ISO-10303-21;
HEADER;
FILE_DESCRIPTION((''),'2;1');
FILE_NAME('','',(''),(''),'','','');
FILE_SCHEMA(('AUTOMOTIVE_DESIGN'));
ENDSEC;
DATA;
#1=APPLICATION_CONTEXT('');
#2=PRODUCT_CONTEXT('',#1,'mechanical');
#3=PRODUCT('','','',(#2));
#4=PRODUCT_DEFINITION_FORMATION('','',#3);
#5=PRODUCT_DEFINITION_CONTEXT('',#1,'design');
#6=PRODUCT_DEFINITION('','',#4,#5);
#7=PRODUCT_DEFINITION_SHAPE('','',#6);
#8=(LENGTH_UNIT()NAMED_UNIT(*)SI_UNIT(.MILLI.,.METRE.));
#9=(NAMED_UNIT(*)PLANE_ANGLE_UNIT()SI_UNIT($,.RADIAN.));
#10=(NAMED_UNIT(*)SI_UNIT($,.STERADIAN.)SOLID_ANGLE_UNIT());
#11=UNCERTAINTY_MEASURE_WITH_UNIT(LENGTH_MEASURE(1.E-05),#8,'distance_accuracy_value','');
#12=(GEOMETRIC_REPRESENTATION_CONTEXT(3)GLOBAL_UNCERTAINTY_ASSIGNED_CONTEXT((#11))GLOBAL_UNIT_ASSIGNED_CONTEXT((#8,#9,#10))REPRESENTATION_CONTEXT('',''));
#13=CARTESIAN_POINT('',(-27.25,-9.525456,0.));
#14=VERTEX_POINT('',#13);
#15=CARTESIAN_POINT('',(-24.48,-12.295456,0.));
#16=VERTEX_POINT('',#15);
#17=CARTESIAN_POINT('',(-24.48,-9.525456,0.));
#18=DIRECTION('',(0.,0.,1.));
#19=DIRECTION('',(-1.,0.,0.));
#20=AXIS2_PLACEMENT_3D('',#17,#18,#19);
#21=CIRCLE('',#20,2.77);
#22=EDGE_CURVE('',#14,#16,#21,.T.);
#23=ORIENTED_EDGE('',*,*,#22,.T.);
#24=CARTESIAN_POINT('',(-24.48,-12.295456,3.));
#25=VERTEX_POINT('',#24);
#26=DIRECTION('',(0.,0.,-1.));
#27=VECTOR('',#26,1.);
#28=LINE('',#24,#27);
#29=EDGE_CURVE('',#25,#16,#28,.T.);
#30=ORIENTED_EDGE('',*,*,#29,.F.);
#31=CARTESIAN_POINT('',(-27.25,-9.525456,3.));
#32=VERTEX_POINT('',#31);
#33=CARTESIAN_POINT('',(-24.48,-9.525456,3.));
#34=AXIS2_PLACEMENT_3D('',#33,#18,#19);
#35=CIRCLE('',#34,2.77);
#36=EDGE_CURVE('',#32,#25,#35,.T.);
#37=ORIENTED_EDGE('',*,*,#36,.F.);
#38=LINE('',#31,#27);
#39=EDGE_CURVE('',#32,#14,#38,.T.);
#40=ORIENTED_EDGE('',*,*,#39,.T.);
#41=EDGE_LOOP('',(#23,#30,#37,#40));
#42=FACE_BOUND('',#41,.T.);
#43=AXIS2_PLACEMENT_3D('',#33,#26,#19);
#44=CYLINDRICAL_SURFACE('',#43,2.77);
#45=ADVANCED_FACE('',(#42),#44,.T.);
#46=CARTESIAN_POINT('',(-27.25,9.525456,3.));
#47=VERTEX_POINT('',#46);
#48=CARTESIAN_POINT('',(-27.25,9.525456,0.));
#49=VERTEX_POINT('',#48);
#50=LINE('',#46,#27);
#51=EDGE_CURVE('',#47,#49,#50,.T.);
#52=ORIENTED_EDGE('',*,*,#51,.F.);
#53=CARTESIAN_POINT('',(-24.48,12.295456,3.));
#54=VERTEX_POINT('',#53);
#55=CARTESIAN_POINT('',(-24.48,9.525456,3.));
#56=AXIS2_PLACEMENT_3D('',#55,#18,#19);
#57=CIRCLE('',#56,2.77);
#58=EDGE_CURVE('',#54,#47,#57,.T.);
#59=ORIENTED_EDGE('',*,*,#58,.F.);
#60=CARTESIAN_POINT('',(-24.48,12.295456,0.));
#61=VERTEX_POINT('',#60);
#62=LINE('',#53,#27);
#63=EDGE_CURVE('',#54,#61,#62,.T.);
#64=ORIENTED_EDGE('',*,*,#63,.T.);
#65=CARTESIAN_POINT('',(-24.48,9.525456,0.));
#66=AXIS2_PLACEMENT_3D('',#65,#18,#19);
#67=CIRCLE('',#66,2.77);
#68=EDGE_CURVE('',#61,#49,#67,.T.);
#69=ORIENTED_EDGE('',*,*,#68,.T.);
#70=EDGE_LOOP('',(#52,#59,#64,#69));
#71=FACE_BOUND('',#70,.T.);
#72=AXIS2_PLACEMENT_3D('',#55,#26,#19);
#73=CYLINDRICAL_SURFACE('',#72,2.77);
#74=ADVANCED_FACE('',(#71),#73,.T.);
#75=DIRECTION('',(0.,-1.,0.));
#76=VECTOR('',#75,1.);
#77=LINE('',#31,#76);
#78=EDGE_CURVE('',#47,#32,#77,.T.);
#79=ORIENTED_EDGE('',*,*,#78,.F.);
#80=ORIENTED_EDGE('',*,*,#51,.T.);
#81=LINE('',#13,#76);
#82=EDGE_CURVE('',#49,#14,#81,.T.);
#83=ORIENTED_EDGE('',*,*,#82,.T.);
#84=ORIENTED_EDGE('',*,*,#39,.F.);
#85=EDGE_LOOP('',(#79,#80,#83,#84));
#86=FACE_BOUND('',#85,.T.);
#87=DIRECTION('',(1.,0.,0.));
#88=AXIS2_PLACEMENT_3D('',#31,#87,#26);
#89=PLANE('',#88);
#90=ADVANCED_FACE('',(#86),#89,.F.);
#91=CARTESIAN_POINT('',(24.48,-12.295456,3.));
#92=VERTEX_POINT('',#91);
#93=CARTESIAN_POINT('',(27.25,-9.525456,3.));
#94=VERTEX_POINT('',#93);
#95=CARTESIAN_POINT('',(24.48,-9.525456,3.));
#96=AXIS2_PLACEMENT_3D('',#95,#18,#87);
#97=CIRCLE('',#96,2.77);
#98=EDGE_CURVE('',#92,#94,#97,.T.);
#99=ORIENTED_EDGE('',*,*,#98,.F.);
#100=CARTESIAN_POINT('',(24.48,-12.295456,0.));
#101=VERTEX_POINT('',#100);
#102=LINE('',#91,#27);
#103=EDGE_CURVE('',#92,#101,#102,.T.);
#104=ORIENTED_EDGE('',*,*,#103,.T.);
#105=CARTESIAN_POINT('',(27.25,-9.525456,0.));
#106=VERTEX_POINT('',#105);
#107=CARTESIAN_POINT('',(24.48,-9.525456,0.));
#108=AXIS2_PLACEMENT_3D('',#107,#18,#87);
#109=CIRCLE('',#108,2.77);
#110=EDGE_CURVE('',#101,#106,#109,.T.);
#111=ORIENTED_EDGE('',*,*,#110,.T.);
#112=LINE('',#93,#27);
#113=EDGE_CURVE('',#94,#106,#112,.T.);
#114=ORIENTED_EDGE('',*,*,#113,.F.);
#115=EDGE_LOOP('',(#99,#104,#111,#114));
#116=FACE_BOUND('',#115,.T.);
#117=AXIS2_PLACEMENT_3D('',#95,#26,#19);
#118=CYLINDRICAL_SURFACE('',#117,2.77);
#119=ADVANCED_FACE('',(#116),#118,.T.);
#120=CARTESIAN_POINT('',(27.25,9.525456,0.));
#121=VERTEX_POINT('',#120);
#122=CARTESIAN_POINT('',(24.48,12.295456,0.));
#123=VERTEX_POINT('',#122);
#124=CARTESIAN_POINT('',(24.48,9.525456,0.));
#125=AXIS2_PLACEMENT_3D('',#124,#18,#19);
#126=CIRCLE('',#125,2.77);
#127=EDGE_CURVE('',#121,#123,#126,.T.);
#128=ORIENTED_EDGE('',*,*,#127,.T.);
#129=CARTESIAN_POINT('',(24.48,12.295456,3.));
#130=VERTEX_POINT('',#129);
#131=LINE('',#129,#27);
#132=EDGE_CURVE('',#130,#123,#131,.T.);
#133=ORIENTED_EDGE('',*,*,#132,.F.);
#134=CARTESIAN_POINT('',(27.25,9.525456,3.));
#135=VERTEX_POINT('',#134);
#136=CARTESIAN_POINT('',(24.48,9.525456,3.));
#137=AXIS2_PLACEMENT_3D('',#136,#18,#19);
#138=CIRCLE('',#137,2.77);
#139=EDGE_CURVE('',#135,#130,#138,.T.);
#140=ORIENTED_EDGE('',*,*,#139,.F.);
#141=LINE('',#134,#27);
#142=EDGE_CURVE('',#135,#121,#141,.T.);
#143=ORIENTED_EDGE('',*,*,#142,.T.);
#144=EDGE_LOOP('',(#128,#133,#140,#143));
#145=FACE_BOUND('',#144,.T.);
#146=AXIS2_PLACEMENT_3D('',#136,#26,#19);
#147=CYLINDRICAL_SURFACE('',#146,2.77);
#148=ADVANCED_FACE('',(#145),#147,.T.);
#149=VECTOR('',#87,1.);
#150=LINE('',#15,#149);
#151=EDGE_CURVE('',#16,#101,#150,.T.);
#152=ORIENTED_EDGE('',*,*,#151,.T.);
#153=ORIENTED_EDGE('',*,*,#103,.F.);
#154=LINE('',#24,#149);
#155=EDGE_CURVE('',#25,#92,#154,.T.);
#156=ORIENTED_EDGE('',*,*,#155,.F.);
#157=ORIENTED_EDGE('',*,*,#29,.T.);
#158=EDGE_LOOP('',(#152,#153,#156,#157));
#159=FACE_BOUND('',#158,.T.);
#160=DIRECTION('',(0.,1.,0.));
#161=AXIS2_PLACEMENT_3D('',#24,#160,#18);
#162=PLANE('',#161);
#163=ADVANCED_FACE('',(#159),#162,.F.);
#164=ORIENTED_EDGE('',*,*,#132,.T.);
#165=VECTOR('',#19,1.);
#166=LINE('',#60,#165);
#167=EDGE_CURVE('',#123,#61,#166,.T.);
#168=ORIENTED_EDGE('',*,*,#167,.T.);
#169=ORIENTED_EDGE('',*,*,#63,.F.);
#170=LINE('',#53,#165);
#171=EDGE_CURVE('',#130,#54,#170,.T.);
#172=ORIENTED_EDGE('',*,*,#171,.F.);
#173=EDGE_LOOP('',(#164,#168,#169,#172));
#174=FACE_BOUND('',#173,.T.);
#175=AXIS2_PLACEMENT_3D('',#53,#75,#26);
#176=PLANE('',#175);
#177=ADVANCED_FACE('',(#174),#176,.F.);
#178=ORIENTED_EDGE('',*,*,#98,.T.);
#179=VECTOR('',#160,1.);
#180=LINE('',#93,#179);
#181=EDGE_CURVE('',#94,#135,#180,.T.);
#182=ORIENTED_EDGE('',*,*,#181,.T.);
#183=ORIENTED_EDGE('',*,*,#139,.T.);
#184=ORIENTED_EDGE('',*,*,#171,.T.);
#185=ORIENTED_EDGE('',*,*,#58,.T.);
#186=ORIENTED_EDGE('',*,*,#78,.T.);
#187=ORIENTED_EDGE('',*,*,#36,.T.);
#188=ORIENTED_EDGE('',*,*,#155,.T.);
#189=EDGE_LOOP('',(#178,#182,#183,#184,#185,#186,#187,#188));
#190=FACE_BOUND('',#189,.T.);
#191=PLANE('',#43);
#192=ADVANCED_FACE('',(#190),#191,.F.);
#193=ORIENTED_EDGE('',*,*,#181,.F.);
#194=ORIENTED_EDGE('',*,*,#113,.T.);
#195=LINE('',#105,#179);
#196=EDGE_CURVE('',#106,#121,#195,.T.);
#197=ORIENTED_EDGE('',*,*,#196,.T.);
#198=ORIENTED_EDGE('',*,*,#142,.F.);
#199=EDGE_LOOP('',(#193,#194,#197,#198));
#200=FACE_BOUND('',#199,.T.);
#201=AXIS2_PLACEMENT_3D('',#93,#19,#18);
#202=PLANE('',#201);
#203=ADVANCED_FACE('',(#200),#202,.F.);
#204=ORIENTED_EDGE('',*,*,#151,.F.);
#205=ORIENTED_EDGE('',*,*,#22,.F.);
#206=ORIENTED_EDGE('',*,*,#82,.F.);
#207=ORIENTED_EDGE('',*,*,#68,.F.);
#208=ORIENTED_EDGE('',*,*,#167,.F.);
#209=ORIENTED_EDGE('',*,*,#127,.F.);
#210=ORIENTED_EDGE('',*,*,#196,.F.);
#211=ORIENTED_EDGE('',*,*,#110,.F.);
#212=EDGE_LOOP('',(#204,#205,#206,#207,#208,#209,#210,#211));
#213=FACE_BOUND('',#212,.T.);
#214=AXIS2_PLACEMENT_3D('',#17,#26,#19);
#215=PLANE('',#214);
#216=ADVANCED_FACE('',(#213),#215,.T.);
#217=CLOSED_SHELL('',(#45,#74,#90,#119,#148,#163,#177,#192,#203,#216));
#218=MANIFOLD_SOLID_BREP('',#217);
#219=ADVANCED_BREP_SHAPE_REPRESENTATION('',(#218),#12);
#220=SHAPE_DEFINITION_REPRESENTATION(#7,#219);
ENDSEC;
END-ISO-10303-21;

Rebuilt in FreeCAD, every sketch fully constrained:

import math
import FreeCAD as App
import Part
import Sketcher

V = App.Vector
Q = App.Units.Quantity

doc = App.newDocument("Part")
body = doc.addObject("PartDesign::Body", "Body")

# Sketch on XY plane
sketch1 = body.newObject("Sketcher::SketchObject", "Sketch")
sketch1.AttachmentSupport = (doc.getObject("XY_Plane"), [""])
sketch1.MapMode = "FlatFace"
sketch1.addGeometry(Part.LineSegment(V(-24.5, -12.3, 0), V(24.5, -12.3, 0)), False)
sketch1.addGeometry(Part.ArcOfCircle(Part.Circle(V(24.5, -9.5, 0), V(0, 0, 1), 2.8), math.radians(-90), math.radians(0)), False)
sketch1.addGeometry(Part.LineSegment(V(27.2, -9.5, 0), V(27.2, 9.5, 0)), False)
sketch1.addGeometry(Part.ArcOfCircle(Part.Circle(V(24.5, 9.5, 0), V(0, 0, 1), 2.8), math.radians(0), math.radians(90)), False)
sketch1.addGeometry(Part.LineSegment(V(24.5, 12.3, 0), V(-24.5, 12.3, 0)), False)
sketch1.addGeometry(Part.ArcOfCircle(Part.Circle(V(-24.5, 9.5, 0), V(0, 0, 1), 2.8), math.radians(90), math.radians(180)), False)
sketch1.addGeometry(Part.LineSegment(V(-27.2, 9.5, 0), V(-27.2, -9.5, 0)), False)
sketch1.addGeometry(Part.ArcOfCircle(Part.Circle(V(-24.5, -9.5, 0), V(0, 0, 1), 2.8), math.radians(180), math.radians(270)), False)
sketch1.addConstraint(Sketcher.Constraint("Tangent", 0, 2, 1, 1))
sketch1.addConstraint(Sketcher.Constraint("Tangent", 1, 2, 2, 1))
sketch1.addConstraint(Sketcher.Constraint("Tangent", 2, 2, 3, 1))
sketch1.addConstraint(Sketcher.Constraint("Tangent", 3, 2, 4, 1))
sketch1.addConstraint(Sketcher.Constraint("Tangent", 4, 2, 5, 1))
sketch1.addConstraint(Sketcher.Constraint("Tangent", 5, 2, 6, 1))
sketch1.addConstraint(Sketcher.Constraint("Tangent", 6, 2, 7, 1))
sketch1.addConstraint(Sketcher.Constraint("Tangent", 7, 2, 0, 1))
sketch1.addConstraint(Sketcher.Constraint("Horizontal", 0))
sketch1.addConstraint(Sketcher.Constraint("Vertical", 2))
sketch1.addConstraint(Sketcher.Constraint("Horizontal", 4))
sketch1.addConstraint(Sketcher.Constraint("Vertical", 6))
sketch1.addConstraint(Sketcher.Constraint("Equal", 1, 3))
sketch1.addConstraint(Sketcher.Constraint("Equal", 3, 5))
sketch1.addConstraint(Sketcher.Constraint("Equal", 5, 7))
sketch1.addConstraint(Sketcher.Constraint("Symmetric", 1, 3, 5, 3, -1, 1))
sketch1.addConstraint(Sketcher.Constraint("Radius", 1, Q("2.77 mm")))
sketch1.addConstraint(Sketcher.Constraint("DistanceX", 0, 1, 0, 2, Q("48.96 mm")))
sketch1.addConstraint(Sketcher.Constraint("DistanceY", 2, 1, 2, 2, Q("19.050912 mm")))
pad1 = body.newObject("PartDesign::Pad", "Pad")
pad1.Profile = sketch1
pad1.Length = 3

# Sketch on XY plane
sketch2 = body.newObject("Sketcher::SketchObject", "Sketch001")
sketch2.AttachmentSupport = (doc.getObject("XY_Plane"), [""])
sketch2.MapMode = "FlatFace"
sketch2.AttachmentOffset = App.Placement(V(0, 0, 3), App.Rotation())
sketch2.addGeometry(Part.LineSegment(V(-124, 12, 0), V(102, 12, 0)), False)
sketch2.addGeometry(Part.LineSegment(V(102, 12, 0), V(102, 230, 0)), False)
sketch2.addGeometry(Part.LineSegment(V(102, 230, 0), V(-124, 230, 0)), False)
sketch2.addGeometry(Part.LineSegment(V(-124, 230, 0), V(-124, 12, 0)), False)
sketch2.addConstraint(Sketcher.Constraint("Coincident", 0, 2, 1, 1))
sketch2.addConstraint(Sketcher.Constraint("Coincident", 1, 2, 2, 1))
sketch2.addConstraint(Sketcher.Constraint("Coincident", 2, 2, 3, 1))
sketch2.addConstraint(Sketcher.Constraint("Coincident", 3, 2, 0, 1))
sketch2.addConstraint(Sketcher.Constraint("Horizontal", 0))
sketch2.addConstraint(Sketcher.Constraint("Vertical", 1))
sketch2.addConstraint(Sketcher.Constraint("Horizontal", 2))
sketch2.addConstraint(Sketcher.Constraint("Vertical", 3))
sketch2.addConstraint(Sketcher.Constraint("DistanceX", 0, 1, 0, 2, Q("225.883286 mm")))
sketch2.addConstraint(Sketcher.Constraint("DistanceY", 1, 1, 1, 2, Q("217.283286 mm")))
sketch2.addConstraint(Sketcher.Constraint("DistanceX", -1, 1, 0, 2, Q("101.738509 mm")))
sketch2.addConstraint(Sketcher.Constraint("DistanceY", -1, 1, 0, 2, Q("12.295456 mm")))
pocket1 = body.newObject("PartDesign::Pocket", "Pocket")
pocket1.Profile = sketch2
pocket1.Length = 10

doc.recompute()
